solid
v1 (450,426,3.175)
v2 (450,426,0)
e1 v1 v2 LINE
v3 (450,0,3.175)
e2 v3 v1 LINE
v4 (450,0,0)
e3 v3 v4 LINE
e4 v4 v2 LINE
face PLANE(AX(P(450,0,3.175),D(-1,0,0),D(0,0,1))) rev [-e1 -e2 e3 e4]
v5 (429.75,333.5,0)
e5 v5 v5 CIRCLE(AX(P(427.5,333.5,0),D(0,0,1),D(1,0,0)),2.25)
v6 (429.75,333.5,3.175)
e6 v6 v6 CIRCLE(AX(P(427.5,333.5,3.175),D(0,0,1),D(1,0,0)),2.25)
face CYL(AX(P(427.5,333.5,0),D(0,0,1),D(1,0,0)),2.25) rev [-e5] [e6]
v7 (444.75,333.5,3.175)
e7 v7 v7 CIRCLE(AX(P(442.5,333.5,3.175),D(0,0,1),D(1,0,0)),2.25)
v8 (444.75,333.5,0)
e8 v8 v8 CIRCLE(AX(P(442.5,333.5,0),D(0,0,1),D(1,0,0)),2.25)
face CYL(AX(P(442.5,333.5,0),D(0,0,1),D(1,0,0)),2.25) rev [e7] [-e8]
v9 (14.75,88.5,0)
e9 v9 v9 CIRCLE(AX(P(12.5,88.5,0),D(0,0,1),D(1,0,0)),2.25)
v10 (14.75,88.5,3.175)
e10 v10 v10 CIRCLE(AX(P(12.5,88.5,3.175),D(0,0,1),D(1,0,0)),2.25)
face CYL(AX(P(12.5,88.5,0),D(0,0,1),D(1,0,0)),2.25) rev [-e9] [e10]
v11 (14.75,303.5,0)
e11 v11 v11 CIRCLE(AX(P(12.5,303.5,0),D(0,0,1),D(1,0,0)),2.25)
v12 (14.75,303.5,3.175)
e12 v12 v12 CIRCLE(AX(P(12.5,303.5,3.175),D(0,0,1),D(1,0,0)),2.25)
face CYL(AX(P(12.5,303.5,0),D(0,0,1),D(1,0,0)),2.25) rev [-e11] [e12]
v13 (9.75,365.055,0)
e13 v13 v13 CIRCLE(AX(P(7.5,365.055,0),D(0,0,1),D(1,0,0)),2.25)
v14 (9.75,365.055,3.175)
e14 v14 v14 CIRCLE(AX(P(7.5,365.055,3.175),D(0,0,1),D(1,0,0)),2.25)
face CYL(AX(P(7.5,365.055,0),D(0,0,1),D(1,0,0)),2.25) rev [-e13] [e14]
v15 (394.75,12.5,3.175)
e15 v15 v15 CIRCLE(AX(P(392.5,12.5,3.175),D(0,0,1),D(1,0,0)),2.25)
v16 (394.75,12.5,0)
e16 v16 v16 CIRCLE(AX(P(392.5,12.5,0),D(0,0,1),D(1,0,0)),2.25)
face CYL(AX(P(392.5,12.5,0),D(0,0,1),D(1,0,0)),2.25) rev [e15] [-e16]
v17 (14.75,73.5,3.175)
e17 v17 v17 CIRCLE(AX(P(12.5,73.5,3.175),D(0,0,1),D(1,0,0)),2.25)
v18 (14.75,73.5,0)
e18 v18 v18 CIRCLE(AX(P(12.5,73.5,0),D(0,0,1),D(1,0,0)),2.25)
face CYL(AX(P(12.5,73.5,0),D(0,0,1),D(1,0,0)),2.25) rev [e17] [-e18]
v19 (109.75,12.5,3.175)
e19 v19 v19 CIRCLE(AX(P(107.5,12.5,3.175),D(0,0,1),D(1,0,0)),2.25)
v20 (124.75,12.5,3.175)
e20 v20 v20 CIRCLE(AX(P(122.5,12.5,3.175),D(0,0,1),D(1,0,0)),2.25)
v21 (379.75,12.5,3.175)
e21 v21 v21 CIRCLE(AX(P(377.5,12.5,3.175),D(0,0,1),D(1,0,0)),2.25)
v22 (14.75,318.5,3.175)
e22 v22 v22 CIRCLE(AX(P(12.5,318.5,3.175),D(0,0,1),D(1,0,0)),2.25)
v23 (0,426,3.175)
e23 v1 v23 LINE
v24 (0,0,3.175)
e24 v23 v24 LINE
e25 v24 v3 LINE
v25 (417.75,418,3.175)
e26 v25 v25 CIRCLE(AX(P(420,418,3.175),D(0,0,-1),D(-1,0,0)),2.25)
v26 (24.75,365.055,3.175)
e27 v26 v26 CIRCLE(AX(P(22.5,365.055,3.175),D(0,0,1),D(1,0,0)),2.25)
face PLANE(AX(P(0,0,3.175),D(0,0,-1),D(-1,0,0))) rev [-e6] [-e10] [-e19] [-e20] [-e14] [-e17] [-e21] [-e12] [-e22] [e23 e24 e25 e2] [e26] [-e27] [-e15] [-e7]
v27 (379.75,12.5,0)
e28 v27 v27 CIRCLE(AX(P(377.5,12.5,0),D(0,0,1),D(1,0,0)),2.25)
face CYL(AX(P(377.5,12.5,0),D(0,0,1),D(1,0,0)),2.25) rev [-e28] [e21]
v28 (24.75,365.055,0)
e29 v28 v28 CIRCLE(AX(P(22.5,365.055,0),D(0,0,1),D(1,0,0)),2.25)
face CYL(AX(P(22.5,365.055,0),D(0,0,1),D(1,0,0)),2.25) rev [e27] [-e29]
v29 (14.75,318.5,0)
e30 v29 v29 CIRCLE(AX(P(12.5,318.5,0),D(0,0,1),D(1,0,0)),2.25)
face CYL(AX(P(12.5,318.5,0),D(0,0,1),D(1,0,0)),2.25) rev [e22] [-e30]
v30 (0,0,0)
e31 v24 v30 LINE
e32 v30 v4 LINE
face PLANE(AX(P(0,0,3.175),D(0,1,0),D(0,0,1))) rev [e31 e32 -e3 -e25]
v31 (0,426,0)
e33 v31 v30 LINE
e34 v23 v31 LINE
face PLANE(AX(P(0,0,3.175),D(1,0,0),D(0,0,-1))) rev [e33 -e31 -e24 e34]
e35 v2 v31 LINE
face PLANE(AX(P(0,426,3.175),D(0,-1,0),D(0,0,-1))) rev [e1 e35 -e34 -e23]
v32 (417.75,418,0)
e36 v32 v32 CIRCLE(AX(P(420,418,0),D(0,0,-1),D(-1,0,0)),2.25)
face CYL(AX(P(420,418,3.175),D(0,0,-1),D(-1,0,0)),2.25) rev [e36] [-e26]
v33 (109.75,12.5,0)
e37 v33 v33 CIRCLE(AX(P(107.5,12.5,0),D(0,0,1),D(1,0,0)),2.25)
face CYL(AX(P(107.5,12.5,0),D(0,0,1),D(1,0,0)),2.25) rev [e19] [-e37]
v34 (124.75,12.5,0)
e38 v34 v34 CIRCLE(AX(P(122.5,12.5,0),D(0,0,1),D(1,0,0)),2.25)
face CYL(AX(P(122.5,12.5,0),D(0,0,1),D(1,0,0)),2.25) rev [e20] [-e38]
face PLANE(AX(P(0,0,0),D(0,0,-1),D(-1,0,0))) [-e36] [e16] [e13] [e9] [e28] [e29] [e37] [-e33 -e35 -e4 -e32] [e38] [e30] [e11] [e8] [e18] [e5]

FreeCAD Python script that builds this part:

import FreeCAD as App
import Part
import Sketcher
Q = App.Units.Quantity


def add_polygon(sketch, points):
    """Adds a closed chain of lines whose ends are joined by coincident constraints."""
    first, n = sketch.GeometryCount, len(points)
    for a, b in zip(points, points[1:] + points[:1]):
        sketch.addGeometry(Part.LineSegment(App.Vector(*a, 0), App.Vector(*b, 0)), False)
    for i in range(n):
        sketch.addConstraint(Sketcher.Constraint("Coincident", first + i, 2, first + (i + 1) % n, 1))

doc = App.newDocument("Part")
params = doc.addObject("Spreadsheet::Sheet", "Params")
for row, (alias, value) in enumerate([
    ("sketch1_width", "450 mm"),
    ("sketch1_height", "426 mm"),
    ("pad1_length", "3.175 mm"),
    ("sketch2_diameter", "4.5 mm"),
    ("sketch3_diameter", "4.5 mm"),
    ("sketch4_diameter", "4.5 mm"),
    ("sketch5_diameter", "4.5 mm"),
    ("sketch6_diameter", "4.5 mm"),
], start=1):
    params.set(f"A{row}", alias)
    params.set(f"B{row}", "=" + value)
    params.setAlias(f"B{row}", alias)

body = doc.addObject("PartDesign::Body", "Body")

sketch1 = body.newObject("Sketcher::SketchObject", "Sketch")
sketch1.AttachmentSupport = (doc.getObject("XY_Plane"), [""])
sketch1.MapMode = "FlatFace"
add_polygon(sketch1, [(0, 426), (0, 0), (450, 0), (450, 426)])
sketch1.addConstraint([
    Sketcher.Constraint("Vertical", 0),
    Sketcher.Constraint("Horizontal", 1),
    Sketcher.Constraint("Vertical", 2),
    Sketcher.Constraint("Horizontal", 3),
    Sketcher.Constraint("Coincident", 0, 2, -1, 1),
    Sketcher.Constraint("DistanceX", 1, 1, 1, 2, Q("450 mm")),
    Sketcher.Constraint("DistanceY", 0, 2, 0, 1, Q("426 mm")),
])
sketch1.setExpression("Constraints[9]", "Params.sketch1_width")
sketch1.setExpression("Constraints[10]", "Params.sketch1_height")
pad1 = body.newObject("PartDesign::Pad", "Pad")
pad1.Profile = sketch1
pad1.setExpression("Length", "Params.pad1_length")

sketch2 = body.newObject("Sketcher::SketchObject", "Sketch001")
sketch2.AttachmentSupport = (doc.getObject("XY_Plane"), [""])
sketch2.MapMode = "FlatFace"
sketch2.addGeometry(Part.Circle(App.Vector(420, 418, 0), App.Vector(0, 0, 1), 2.2), False)
sketch2.addConstraint([
    Sketcher.Constraint("Diameter", 0, Q("4.5 mm")),
    Sketcher.Constraint("DistanceX", -1, 1, 0, 3, Q("420 mm")),
    Sketcher.Constraint("DistanceY", -1, 1, 0, 3, Q("418 mm")),
])
sketch2.setExpression("Constraints[0]", "Params.sketch2_diameter")
pocket1 = body.newObject("PartDesign::Pocket", "Pocket")
pocket1.Profile = sketch2
pocket1.Type = "ThroughAll"
pocket1.Reversed = True

sketch3 = body.newObject("Sketcher::SketchObject", "Sketch002")
sketch3.AttachmentSupport = (doc.getObject("XY_Plane"), [""])
sketch3.MapMode = "FlatFace"
sketch3.AttachmentOffset = App.Placement(App.Vector(0, 0, 3.175), App.Rotation())
sketch3.addGeometry([
    Part.Circle(App.Vector(427.5, 333.5, 0), App.Vector(0, 0, 1), 2.2),
    Part.Circle(App.Vector(442.5, 333.5, 0), App.Vector(0, 0, 1), 2.2),
], False)
sketch3.addConstraint([
    Sketcher.Constraint("Equal", 0, 1),
    Sketcher.Constraint("Horizontal", 0, 3, 1, 3),
    Sketcher.Constraint("Diameter", 0, Q("4.5 mm")),
    Sketcher.Constraint("DistanceX", 0, 3, 1, 3, Q("15 mm")),
    Sketcher.Constraint("DistanceX", -1, 1, 0, 3, Q("427.5 mm")),
    Sketcher.Constraint("DistanceY", -1, 1, 0, 3, Q("333.5 mm")),
])
sketch3.setExpression("Constraints[2]", "Params.sketch3_diameter")
pocket2 = body.newObject("PartDesign::Pocket", "Pocket001")
pocket2.Profile = sketch3
pocket2.Type = "ThroughAll"

sketch4 = body.newObject("Sketcher::SketchObject", "Sketch003")
sketch4.AttachmentSupport = (doc.getObject("XY_Plane"), [""])
sketch4.MapMode = "FlatFace"
sketch4.AttachmentOffset = App.Placement(App.Vector(0, 0, 3.175), App.Rotation())
sketch4.addGeometry([
    Part.Circle(App.Vector(7.5, 365.1, 0), App.Vector(0, 0, 1), 2.2),
    Part.Circle(App.Vector(22.5, 365.1, 0), App.Vector(0, 0, 1), 2.2),
], False)
sketch4.addConstraint([
    Sketcher.Constraint("Equal", 0, 1),
    Sketcher.Constraint("Horizontal", 0, 3, 1, 3),
    Sketcher.Constraint("Diameter", 0, Q("4.5 mm")),
    Sketcher.Constraint("DistanceX", 0, 3, 1, 3, Q("15 mm")),
    Sketcher.Constraint("DistanceX", -1, 1, 0, 3, Q("7.5 mm")),
    Sketcher.Constraint("DistanceY", -1, 1, 0, 3, Q("365.055 mm")),
])
sketch4.setExpression("Constraints[2]", "Params.sketch4_diameter")
pocket3 = body.newObject("PartDesign::Pocket", "Pocket002")
pocket3.Profile = sketch4
pocket3.Type = "ThroughAll"

sketch5 = body.newObject("Sketcher::SketchObject", "Sketch004")
sketch5.AttachmentSupport = (doc.getObject("XY_Plane"), [""])
sketch5.MapMode = "FlatFace"
sketch5.AttachmentOffset = App.Placement(App.Vector(0, 0, 3.175), App.Rotation())
sketch5.addGeometry([
    Part.Circle(App.Vector(377.5, 12.5, 0), App.Vector(0, 0, 1), 2.2),
    Part.Circle(App.Vector(122.5, 12.5, 0), App.Vector(0, 0, 1), 2.2),
    Part.Circle(App.Vector(107.5, 12.5, 0), App.Vector(0, 0, 1), 2.2),
    Part.Circle(App.Vector(392.5, 12.5, 0), App.Vector(0, 0, 1), 2.2),
], False)
sketch5.addConstraint([
    Sketcher.Constraint("Equal", 0, 1),
    Sketcher.Constraint("Equal", 1, 2),
    Sketcher.Constraint("Equal", 2, 3),
    Sketcher.Constraint("Horizontal", 0, 3, 1, 3),
    Sketcher.Constraint("Horizontal", 1, 3, 2, 3),
    Sketcher.Constraint("Horizontal", 2, 3, 3, 3),
    Sketcher.Constraint("Diameter", 0, Q("4.5 mm")),
    Sketcher.Constraint("DistanceX", 1, 3, 0, 3, Q("255 mm")),
    Sketcher.Constraint("DistanceX", 2, 3, 1, 3, Q("15 mm")),
    Sketcher.Constraint("DistanceX", 0, 3, 3, 3, Q("15 mm")),
    Sketcher.Constraint("DistanceX", -1, 1, 0, 3, Q("377.5 mm")),
    Sketcher.Constraint("DistanceY", -1, 1, 0, 3, Q("12.5 mm")),
])
sketch5.setExpression("Constraints[6]", "Params.sketch5_diameter")
pocket4 = body.newObject("PartDesign::Pocket", "Pocket003")
pocket4.Profile = sketch5
pocket4.Type = "ThroughAll"

sketch6 = body.newObject("Sketcher::SketchObject", "Sketch005")
sketch6.AttachmentSupport = (doc.getObject("XY_Plane"), [""])
sketch6.MapMode = "FlatFace"
sketch6.AttachmentOffset = App.Placement(App.Vector(0, 0, 3.175), App.Rotation())
sketch6.addGeometry([
    Part.Circle(App.Vector(12.5, 303.5, 0), App.Vector(0, 0, 1), 2.2),
    Part.Circle(App.Vector(12.5, 318.5, 0), App.Vector(0, 0, 1), 2.2),
    Part.Circle(App.Vector(12.5, 73.5, 0), App.Vector(0, 0, 1), 2.2),
    Part.Circle(App.Vector(12.5, 88.5, 0), App.Vector(0, 0, 1), 2.2),
], False)
sketch6.addConstraint([
    Sketcher.Constraint("Equal", 0, 1),
    Sketcher.Constraint("Equal", 1, 2),
    Sketcher.Constraint("Equal", 2, 3),
    Sketcher.Constraint("Vertical", 0, 3, 1, 3),
    Sketcher.Constraint("Vertical", 1, 3, 2, 3),
    Sketcher.Constraint("Vertical", 2, 3, 3, 3),
    Sketcher.Constraint("Diameter", 0, Q("4.5 mm")),
    Sketcher.Constraint("DistanceY", 0, 3, 1, 3, Q("15 mm")),
    Sketcher.Constraint("DistanceY", 2, 3, 0, 3, Q("230 mm")),
    Sketcher.Constraint("DistanceY", 2, 3, 3, 3, Q("15 mm")),
    Sketcher.Constraint("DistanceX", -1, 1, 0, 3, Q("12.5 mm")),
    Sketcher.Constraint("DistanceY", -1, 1, 0, 3, Q("303.5 mm")),
])
sketch6.setExpression("Constraints[6]", "Params.sketch6_diameter")
pocket5 = body.newObject("PartDesign::Pocket", "Pocket004")
pocket5.Profile = sketch6
pocket5.Type = "ThroughAll"

doc.recompute()
